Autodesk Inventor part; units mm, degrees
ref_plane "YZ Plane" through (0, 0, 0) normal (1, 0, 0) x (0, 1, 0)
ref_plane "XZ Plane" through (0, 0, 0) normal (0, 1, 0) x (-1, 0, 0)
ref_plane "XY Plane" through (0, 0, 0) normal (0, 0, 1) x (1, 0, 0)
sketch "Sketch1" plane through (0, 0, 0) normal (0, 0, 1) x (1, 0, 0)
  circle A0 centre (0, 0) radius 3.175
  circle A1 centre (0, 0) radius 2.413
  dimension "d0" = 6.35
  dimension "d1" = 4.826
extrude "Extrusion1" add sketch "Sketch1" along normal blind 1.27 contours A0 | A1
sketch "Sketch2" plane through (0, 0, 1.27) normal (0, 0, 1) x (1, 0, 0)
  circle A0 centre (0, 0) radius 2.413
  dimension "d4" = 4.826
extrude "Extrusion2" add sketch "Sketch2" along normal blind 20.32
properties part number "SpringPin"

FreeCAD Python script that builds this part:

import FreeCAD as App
import Part
import Sketcher
from FreeCAD import Vector
Q = App.Units.Quantity

doc = App.newDocument("Part")
body = doc.addObject("PartDesign::Body", "Body")

# Sketch on XY plane
sketch1 = body.newObject("Sketcher::SketchObject", "Sketch")
sketch1.AttachmentSupport = (doc.getObject("XY_Plane"), [""])
sketch1.MapMode = "FlatFace"
sketch1.addGeometry(Part.Circle(Vector(0, 0, 0), Vector(0, 0, 1), 3.2), False)
sketch1.addConstraint(Sketcher.Constraint("Coincident", 0, 3, -1, 1))
sketch1.addConstraint(Sketcher.Constraint("Diameter", 0, Q("0.25 in")))
pad1 = body.newObject("PartDesign::Pad", "Pad")
pad1.Profile = sketch1
pad1.Length = Q("0.05 in")

# Sketch on XY plane
sketch2 = body.newObject("Sketcher::SketchObject", "Sketch001")
sketch2.AttachmentSupport = (doc.getObject("XY_Plane"), [""])
sketch2.MapMode = "FlatFace"
sketch2.AttachmentOffset = App.Placement(Vector(0, 0, 0.05 * 25.4), App.Rotation())
sketch2.addGeometry(Part.Circle(Vector(0, 0, 0), Vector(0, 0, 1), 2.4), False)
sketch2.addConstraint(Sketcher.Constraint("Coincident", 0, 3, -1, 1))
sketch2.addConstraint(Sketcher.Constraint("Diameter", 0, Q("0.19 in")))
pad2 = body.newObject("PartDesign::Pad", "Pad001")
pad2.Profile = sketch2
pad2.Length = Q("0.8 in")

doc.recompute()
